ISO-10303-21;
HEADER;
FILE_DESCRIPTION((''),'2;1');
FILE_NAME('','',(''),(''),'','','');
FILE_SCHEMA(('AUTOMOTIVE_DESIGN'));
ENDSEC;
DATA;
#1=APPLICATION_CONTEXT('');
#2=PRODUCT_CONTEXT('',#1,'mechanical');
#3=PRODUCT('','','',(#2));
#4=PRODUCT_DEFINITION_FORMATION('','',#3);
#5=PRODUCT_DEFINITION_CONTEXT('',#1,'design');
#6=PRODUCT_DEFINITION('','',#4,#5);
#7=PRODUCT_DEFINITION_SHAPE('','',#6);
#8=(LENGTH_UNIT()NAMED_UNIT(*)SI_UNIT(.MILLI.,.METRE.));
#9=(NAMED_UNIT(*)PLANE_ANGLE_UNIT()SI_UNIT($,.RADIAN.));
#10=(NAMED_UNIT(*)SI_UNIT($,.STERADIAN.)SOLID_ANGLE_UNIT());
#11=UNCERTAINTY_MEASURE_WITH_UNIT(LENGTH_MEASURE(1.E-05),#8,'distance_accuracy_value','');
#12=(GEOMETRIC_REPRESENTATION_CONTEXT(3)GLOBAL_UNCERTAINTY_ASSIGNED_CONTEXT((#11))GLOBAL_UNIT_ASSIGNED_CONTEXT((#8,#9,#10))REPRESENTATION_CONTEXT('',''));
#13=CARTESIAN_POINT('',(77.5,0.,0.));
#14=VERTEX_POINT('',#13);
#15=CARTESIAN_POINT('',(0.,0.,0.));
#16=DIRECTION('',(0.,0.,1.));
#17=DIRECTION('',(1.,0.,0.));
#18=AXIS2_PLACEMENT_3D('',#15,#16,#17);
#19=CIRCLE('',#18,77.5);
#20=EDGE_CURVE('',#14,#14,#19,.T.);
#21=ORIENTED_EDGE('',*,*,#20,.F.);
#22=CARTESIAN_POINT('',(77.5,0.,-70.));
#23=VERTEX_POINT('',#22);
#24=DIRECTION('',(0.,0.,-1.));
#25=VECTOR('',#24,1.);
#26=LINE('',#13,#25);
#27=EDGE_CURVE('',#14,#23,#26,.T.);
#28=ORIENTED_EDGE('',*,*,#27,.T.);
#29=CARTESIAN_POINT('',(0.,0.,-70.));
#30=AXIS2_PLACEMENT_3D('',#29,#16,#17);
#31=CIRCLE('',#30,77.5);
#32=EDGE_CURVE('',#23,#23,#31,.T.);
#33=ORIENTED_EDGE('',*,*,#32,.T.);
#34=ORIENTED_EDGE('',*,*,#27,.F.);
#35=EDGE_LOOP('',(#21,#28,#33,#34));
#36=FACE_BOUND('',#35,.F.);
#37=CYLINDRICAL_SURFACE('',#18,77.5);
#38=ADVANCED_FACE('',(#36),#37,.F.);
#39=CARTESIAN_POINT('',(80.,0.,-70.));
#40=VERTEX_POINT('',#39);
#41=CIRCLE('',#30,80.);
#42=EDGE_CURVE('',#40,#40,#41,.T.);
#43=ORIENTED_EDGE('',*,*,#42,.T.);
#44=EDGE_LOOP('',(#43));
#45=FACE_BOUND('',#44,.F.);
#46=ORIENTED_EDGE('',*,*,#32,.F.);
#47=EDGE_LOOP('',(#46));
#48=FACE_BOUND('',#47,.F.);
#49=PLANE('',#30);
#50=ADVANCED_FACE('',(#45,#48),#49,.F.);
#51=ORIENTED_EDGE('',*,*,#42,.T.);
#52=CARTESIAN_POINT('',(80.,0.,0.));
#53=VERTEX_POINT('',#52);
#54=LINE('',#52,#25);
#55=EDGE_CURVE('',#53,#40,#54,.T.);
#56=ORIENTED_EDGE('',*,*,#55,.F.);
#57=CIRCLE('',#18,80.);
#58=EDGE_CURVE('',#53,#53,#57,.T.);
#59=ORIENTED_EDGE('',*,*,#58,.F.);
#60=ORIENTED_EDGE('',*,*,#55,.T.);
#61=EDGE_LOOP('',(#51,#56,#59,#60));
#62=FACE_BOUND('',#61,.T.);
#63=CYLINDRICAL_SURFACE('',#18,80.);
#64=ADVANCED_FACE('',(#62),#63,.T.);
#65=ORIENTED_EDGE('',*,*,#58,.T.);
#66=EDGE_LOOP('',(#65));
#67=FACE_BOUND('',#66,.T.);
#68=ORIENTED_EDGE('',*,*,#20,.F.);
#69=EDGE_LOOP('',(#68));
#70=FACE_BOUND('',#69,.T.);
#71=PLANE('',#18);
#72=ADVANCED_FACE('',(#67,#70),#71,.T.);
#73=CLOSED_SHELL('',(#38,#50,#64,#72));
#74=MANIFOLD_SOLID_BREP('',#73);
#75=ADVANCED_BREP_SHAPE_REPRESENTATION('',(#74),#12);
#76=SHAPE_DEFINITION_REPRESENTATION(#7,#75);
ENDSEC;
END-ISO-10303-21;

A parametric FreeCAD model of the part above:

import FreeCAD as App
import Part
import Sketcher
from FreeCAD import Vector

doc = App.newDocument("Part")
params = doc.addObject("Spreadsheet::Sheet", "Params")
for row, (alias, value) in enumerate([
    ("sketch1_diameter", "160 mm"),
    ("sketch1_diameter2", "155 mm"),
    ("pad1_length", "70 mm"),
], start=1):
    params.set(f"A{row}", alias)
    params.set(f"B{row}", "=" + value)
    params.setAlias(f"B{row}", alias)

body = doc.addObject("PartDesign::Body", "Body")

# Sketch on XY plane
sketch1 = doc.addObject("Sketcher::SketchObject", "Sketch")
body.addObject(sketch1)
sketch1.AttachmentSupport = (doc.XY_Plane, [""])
sketch1.MapMode = "FlatFace"
sketch1.addGeometry([
    Part.Circle(Vector(0, 0, 0), Vector(0, 0, 1), 80),
    Part.Circle(Vector(0, 0, 0), Vector(0, 0, 1), 77.5),
], False)
sketch1.addConstraint([
    Sketcher.Constraint("Coincident", 0, 3, -1, 1),
    Sketcher.Constraint("Coincident", 1, 3, -1, 1),
    Sketcher.Constraint("Diameter", 0, 160.0),
    Sketcher.Constraint("Diameter", 1, 155.0),
])
sketch1.setExpression("Constraints[2]", "Params.sketch1_diameter")
sketch1.setExpression("Constraints[3]", "Params.sketch1_diameter2")
pad1 = doc.addObject("PartDesign::Pad", "Pad")
body.addObject(pad1)
pad1.Profile = sketch1
pad1.setExpression("Length", "Params.pad1_length")
pad1.Reversed = True

doc.recompute()
